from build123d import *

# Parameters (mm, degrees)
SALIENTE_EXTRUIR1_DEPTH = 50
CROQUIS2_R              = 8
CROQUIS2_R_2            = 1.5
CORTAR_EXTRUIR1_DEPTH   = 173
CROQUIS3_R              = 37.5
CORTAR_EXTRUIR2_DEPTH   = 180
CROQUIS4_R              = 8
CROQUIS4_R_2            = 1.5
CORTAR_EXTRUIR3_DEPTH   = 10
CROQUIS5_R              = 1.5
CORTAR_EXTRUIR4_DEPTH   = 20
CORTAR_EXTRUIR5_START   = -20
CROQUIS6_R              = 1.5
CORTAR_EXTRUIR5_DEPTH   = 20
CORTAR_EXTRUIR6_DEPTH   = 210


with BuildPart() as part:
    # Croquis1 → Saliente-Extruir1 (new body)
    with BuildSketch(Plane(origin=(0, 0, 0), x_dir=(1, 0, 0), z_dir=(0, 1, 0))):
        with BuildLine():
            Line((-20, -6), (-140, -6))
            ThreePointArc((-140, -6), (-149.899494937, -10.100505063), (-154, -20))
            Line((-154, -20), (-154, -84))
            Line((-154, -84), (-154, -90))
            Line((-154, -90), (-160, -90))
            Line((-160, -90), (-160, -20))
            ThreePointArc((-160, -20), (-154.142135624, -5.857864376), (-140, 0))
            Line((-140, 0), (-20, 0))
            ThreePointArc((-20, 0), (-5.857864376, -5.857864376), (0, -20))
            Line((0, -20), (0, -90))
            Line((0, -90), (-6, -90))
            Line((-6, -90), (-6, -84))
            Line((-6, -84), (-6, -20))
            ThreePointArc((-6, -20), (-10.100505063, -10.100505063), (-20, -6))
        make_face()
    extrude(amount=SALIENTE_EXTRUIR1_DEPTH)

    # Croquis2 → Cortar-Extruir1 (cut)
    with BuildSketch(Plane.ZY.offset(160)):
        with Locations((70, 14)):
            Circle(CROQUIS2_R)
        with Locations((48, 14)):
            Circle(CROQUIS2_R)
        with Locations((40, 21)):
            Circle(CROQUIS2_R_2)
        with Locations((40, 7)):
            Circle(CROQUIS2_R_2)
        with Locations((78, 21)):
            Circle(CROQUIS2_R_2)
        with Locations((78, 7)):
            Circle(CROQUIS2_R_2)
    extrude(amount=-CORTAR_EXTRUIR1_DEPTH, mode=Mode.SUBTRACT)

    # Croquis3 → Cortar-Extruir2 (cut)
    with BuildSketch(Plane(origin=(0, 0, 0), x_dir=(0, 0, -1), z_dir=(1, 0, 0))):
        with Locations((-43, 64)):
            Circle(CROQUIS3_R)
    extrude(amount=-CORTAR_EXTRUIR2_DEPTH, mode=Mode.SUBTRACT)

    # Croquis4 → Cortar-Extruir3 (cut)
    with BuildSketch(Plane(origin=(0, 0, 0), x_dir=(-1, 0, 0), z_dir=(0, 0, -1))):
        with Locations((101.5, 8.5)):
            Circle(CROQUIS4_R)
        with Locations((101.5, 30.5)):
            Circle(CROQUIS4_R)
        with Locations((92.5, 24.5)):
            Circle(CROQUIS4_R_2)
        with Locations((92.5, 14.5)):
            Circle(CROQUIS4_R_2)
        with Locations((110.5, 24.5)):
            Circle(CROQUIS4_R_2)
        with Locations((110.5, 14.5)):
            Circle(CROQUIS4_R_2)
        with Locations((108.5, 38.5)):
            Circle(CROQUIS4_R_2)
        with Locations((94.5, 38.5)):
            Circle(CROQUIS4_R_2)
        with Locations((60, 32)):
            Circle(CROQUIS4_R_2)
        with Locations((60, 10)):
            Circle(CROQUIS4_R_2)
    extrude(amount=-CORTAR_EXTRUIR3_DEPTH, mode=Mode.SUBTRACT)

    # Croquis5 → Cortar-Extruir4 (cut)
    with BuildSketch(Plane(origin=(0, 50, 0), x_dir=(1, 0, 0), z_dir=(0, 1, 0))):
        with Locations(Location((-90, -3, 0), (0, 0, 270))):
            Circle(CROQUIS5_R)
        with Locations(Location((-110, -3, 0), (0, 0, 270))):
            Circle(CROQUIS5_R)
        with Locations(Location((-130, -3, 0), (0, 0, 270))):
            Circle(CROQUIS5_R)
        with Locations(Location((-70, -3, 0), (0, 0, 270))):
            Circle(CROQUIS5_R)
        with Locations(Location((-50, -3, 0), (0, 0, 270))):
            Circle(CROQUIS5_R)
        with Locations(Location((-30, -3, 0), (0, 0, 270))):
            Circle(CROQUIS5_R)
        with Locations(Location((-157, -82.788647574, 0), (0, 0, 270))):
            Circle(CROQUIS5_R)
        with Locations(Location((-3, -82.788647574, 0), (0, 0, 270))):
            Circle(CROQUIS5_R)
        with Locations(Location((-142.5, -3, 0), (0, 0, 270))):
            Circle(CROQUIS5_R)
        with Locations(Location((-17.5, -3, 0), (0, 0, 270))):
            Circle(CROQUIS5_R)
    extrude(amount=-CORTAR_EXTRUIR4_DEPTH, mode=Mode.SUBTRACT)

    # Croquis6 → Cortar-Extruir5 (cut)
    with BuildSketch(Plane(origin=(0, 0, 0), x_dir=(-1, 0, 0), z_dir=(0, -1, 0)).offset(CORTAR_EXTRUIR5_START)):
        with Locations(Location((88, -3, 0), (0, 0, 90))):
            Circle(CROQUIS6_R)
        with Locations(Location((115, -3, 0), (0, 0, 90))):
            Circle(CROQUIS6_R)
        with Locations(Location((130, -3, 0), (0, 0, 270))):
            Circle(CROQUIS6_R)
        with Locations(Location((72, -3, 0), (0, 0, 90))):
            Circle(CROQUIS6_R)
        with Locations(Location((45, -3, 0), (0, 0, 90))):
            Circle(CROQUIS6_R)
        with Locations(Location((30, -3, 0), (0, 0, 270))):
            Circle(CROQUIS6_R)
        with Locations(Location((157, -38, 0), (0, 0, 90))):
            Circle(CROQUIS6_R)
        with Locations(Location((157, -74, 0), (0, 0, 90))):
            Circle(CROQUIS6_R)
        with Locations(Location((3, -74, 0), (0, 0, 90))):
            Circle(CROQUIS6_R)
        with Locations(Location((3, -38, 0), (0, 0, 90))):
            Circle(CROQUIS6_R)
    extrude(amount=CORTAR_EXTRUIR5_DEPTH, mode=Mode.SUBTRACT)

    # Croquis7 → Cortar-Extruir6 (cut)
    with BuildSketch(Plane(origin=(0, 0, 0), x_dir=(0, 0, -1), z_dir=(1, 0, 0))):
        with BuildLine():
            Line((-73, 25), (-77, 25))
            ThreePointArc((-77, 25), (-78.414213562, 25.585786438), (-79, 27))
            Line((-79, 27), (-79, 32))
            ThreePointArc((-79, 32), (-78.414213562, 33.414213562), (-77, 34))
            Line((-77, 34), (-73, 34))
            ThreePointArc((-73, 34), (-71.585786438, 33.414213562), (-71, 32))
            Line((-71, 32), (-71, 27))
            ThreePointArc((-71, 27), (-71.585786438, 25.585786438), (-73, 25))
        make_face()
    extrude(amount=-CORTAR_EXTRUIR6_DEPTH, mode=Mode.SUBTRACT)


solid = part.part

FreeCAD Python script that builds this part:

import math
import FreeCAD as App
import Part
import Sketcher

V = App.Vector
Q = App.Units.Quantity

doc = App.newDocument("Part")
body = doc.addObject("PartDesign::Body", "Body")

# Sketch on XZ plane
sketch1 = doc.addObject("Sketcher::SketchObject", "Sketch")
body.addObject(sketch1)
sketch1.AttachmentSupport = (doc.XZ_Plane, [""])
sketch1.MapMode = "FlatFace"
sketch1.addGeometry([
    Part.LineSegment(V(-140, 6, 0), V(-20, 6, 0)),  # 0
    Part.ArcOfCircle(Part.Circle(V(-20, 20, 0), V(0, 0, 1), 14), math.radians(-90), math.radians(0)),  # 1
    Part.LineSegment(V(-6, 20, 0), V(-6, 90, 0)),  # 2
    Part.LineSegment(V(-6, 90, 0), V(0, 90, 0)),  # 3
    Part.LineSegment(V(0, 90, 0), V(0, 20, 0)),  # 4
    Part.ArcOfCircle(Part.Circle(V(-20, 20, 0), V(0, 0, 1), 20), math.radians(-90), math.radians(0)),  # 5
    Part.LineSegment(V(-20, 0, 0), V(-140, 0, 0)),  # 6
    Part.ArcOfCircle(Part.Circle(V(-140, 20, 0), V(0, 0, 1), 20), math.radians(180), math.radians(270)),  # 7
    Part.LineSegment(V(-160, 20, 0), V(-160, 90, 0)),  # 8
    Part.LineSegment(V(-160, 90, 0), V(-154, 90, 0)),  # 9
    Part.LineSegment(V(-154, 90, 0), V(-154, 20, 0)),  # 10
    Part.ArcOfCircle(Part.Circle(V(-140, 20, 0), V(0, 0, 1), 14), math.radians(180), math.radians(270)),  # 11
], False)
sketch1.addConstraint([
    Sketcher.Constraint("Tangent", 0, 2, 1, 1),
    Sketcher.Constraint("Tangent", 1, 2, 2, 1),
    Sketcher.Constraint("Coincident", 2, 2, 3, 1),
    Sketcher.Constraint("Coincident", 3, 2, 4, 1),
    Sketcher.Constraint("Tangent", 4, 2, 5, 2),
    Sketcher.Constraint("Tangent", 5, 1, 6, 1),
    Sketcher.Constraint("Tangent", 6, 2, 7, 2),
    Sketcher.Constraint("Tangent", 7, 1, 8, 1),
    Sketcher.Constraint("Coincident", 8, 2, 9, 1),
    Sketcher.Constraint("Coincident", 9, 2, 10, 1),
    Sketcher.Constraint("Tangent", 10, 2, 11, 1),
    Sketcher.Constraint("Tangent", 11, 2, 0, 1),
    Sketcher.Constraint("Horizontal", 0),
    Sketcher.Constraint("Vertical", 2),
    Sketcher.Constraint("Horizontal", 3),
    Sketcher.Constraint("Vertical", 4),
    Sketcher.Constraint("Horizontal", 6),
    Sketcher.Constraint("Vertical", 8),
    Sketcher.Constraint("Horizontal", 9),
    Sketcher.Constraint("Vertical", 10),
    Sketcher.Constraint("Coincident", 5, 3, 1, 3),
    Sketcher.Constraint("Coincident", 11, 3, 7, 3),
    Sketcher.Constraint("Equal", 5, 7),
    Sketcher.Constraint("PointOnObject", 3, 2, -2),
    Sketcher.Constraint("PointOnObject", 5, 1, -1),
    Sketcher.Constraint("Horizontal", 3, 2, 8, 2),
    Sketcher.Constraint("Radius", 1, Q("14 mm")),
    Sketcher.Constraint("Radius", 5, Q("20 mm")),
    Sketcher.Constraint("DistanceX", 0, 1, 0, 2, Q("120 mm")),
    Sketcher.Constraint("DistanceY", 2, 1, 2, 2, Q("70 mm")),
])
pad1 = doc.addObject("PartDesign::Pad", "Pad")
body.addObject(pad1)
pad1.Profile = sketch1
pad1.Length = 50
pad1.Reversed = True

# Sketch on YZ plane
sketch2 = doc.addObject("Sketcher::SketchObject", "Sketch001")
body.addObject(sketch2)
sketch2.AttachmentSupport = (doc.YZ_Plane, [""])
sketch2.MapMode = "FlatFace"
sketch2.AttachmentOffset = App.Placement(V(0, 0, -160), App.Rotation())
sketch2.addGeometry([
    Part.Circle(V(14, 70, 0), V(0, 0, 1), 8),  # 0
    Part.Circle(V(14, 48, 0), V(0, 0, 1), 8),  # 1
    Part.Circle(V(21, 40, 0), V(0, 0, 1), 1.5),  # 2
    Part.Circle(V(7, 40, 0), V(0, 0, 1), 1.5),  # 3
    Part.Circle(V(21, 78, 0), V(0, 0, 1), 1.5),  # 4
    Part.Circle(V(7, 78, 0), V(0, 0, 1), 1.5),  # 5
], False)
sketch2.addConstraint([
    Sketcher.Constraint("Equal", 0, 1),
    Sketcher.Constraint("Equal", 2, 3),
    Sketcher.Constraint("Equal", 3, 4),
    Sketcher.Constraint("Equal", 4, 5),
    Sketcher.Constraint("Horizontal", 2, 3, 3, 3),
    Sketcher.Constraint("Horizontal", 4, 3, 5, 3),
    Sketcher.Constraint("Vertical", 0, 3, 1, 3),
    Sketcher.Constraint("Vertical", 2, 3, 4, 3),
    Sketcher.Constraint("Vertical", 3, 3, 5, 3),
    Sketcher.Constraint("Diameter", 0, Q("16 mm")),
    Sketcher.Constraint("Diameter", 2, Q("3 mm")),
    Sketcher.Constraint("DistanceX", -1, 1, 0, 3, Q("14 mm")),
    Sketcher.Constraint("DistanceY", -1, 1, 0, 3, Q("70 mm")),
    Sketcher.Constraint("DistanceY", -1, 1, 1, 3, Q("48 mm")),
    Sketcher.Constraint("DistanceX", -1, 1, 2, 3, Q("21 mm")),
    Sketcher.Constraint("DistanceY", -1, 1, 2, 3, Q("40 mm")),
    Sketcher.Constraint("DistanceX", -1, 1, 3, 3, Q("7 mm")),
    Sketcher.Constraint("DistanceY", -1, 1, 4, 3, Q("78 mm")),
])
pocket1 = doc.addObject("PartDesign::Pocket", "Pocket")
body.addObject(pocket1)
pocket1.Profile = sketch2
pocket1.Length = 173
pocket1.Reversed = True

# Sketch on YZ plane
sketch3 = doc.addObject("Sketcher::SketchObject", "Sketch002")
body.addObject(sketch3)
sketch3.AttachmentSupport = (doc.YZ_Plane, [""])
sketch3.MapMode = "FlatFace"
sketch3.addGeometry(Part.Circle(V(64, 43, 0), V(0, 0, 1), 37.5), False)
sketch3.addConstraint([
    Sketcher.Constraint("Diameter", 0, Q("75 mm")),
    Sketcher.Constraint("DistanceX", -1, 1, 0, 3, Q("64 mm")),
    Sketcher.Constraint("DistanceY", -1, 1, 0, 3, Q("43 mm")),
])
pocket2 = doc.addObject("PartDesign::Pocket", "Pocket001")
body.addObject(pocket2)
pocket2.Profile = sketch3
pocket2.Length = 180

# Sketch on XY plane
sketch4 = doc.addObject("Sketcher::SketchObject", "Sketch003")
body.addObject(sketch4)
sketch4.AttachmentSupport = (doc.XY_Plane, [""])
sketch4.MapMode = "FlatFace"
sketch4.addGeometry([
    Part.Circle(V(-101.5, 8.5, 0), V(0, 0, 1), 8),  # 0
    Part.Circle(V(-101.5, 30.5, 0), V(0, 0, 1), 8),  # 1
    Part.Circle(V(-92.5, 24.5, 0), V(0, 0, 1), 1.5),  # 2
    Part.Circle(V(-92.5, 14.5, 0), V(0, 0, 1), 1.5),  # 3
    Part.Circle(V(-110.5, 24.5, 0), V(0, 0, 1), 1.5),  # 4
    Part.Circle(V(-110.5, 14.5, 0), V(0, 0, 1), 1.5),  # 5
    Part.Circle(V(-108.5, 38.5, 0), V(0, 0, 1), 1.5),  # 6
    Part.Circle(V(-94.5, 38.5, 0), V(0, 0, 1), 1.5),  # 7
    Part.Circle(V(-60, 32, 0), V(0, 0, 1), 1.5),  # 8
    Part.Circle(V(-60, 10, 0), V(0, 0, 1), 1.5),  # 9
], False)
sketch4.addConstraint([
    Sketcher.Constraint("Equal", 0, 1),
    Sketcher.Constraint("Equal", 2, 3),
    Sketcher.Constraint("Equal", 3, 4),
    Sketcher.Constraint("Equal", 4, 5),
    Sketcher.Constraint("Equal", 5, 6),
    Sketcher.Constraint("Equal", 6, 7),
    Sketcher.Constraint("Equal", 7, 8),
    Sketcher.Constraint("Equal", 8, 9),
    Sketcher.Constraint("Horizontal", 2, 3, 4, 3),
    Sketcher.Constraint("Horizontal", 3, 3, 5, 3),
    Sketcher.Constraint("Horizontal", 6, 3, 7, 3),
    Sketcher.Constraint("Vertical", 0, 3, 1, 3),
    Sketcher.Constraint("Vertical", 2, 3, 3, 3),
    Sketcher.Constraint("Vertical", 4, 3, 5, 3),
    Sketcher.Constraint("Vertical", 8, 3, 9, 3),
    Sketcher.Constraint("Diameter", 0, Q("16 mm")),
    Sketcher.Constraint("Diameter", 2, Q("3 mm")),
    Sketcher.Constraint("DistanceX", 8, 3, -1, 1, Q("60 mm")),
    Sketcher.Constraint("DistanceY", -1, 1, 8, 3, Q("32 mm")),
    Sketcher.Constraint("DistanceY", -1, 1, 9, 3, Q("10 mm")),
    Sketcher.Constraint("DistanceY", 0, 3, 1, 3, Q("22 mm")),
    Sketcher.Constraint("DistanceX", 1, 3, 2, 3, Q("9 mm")),
    Sketcher.Constraint("DistanceY", 2, 3, 1, 3, Q("6 mm")),
    Sketcher.Constraint("DistanceY", 3, 3, 2, 3, Q("10 mm")),
    Sketcher.Constraint("DistanceX", 4, 3, 1, 3, Q("9 mm")),
    Sketcher.Constraint("DistanceX", 6, 3, 1, 3, Q("7 mm")),
    Sketcher.Constraint("DistanceY", 1, 3, 6, 3, Q("8 mm")),
    Sketcher.Constraint("DistanceX", 1, 3, 7, 3, Q("7 mm")),
    Sketcher.Constraint("DistanceX", 0, 3, -1, 1, Q("101.5 mm")),
    Sketcher.Constraint("DistanceY", -1, 1, 0, 3, Q("8.5 mm")),
])
pocket3 = doc.addObject("PartDesign::Pocket", "Pocket002")
body.addObject(pocket3)
pocket3.Profile = sketch4
pocket3.Length = 10
pocket3.Reversed = True

# Sketch on XZ plane
sketch5 = doc.addObject("Sketcher::SketchObject", "Sketch004")
body.addObject(sketch5)
sketch5.AttachmentSupport = (doc.XZ_Plane, [""])
sketch5.MapMode = "FlatFace"
sketch5.AttachmentOffset = App.Placement(V(0, 0, -50), App.Rotation())
sketch5.addGeometry([
    Part.Circle(V(-90, 3, 0), V(0, 0, 1), 1.5),  # 0
    Part.Circle(V(-110, 3, 0), V(0, 0, 1), 1.5),  # 1
    Part.Circle(V(-130, 3, 0), V(0, 0, 1), 1.5),  # 2
    Part.Circle(V(-70, 3, 0), V(0, 0, 1), 1.5),  # 3
    Part.Circle(V(-50, 3, 0), V(0, 0, 1), 1.5),  # 4
    Part.Circle(V(-30, 3, 0), V(0, 0, 1), 1.5),  # 5
    Part.Circle(V(-157, 82.788648, 0), V(0, 0, 1), 1.5),  # 6
    Part.Circle(V(-3, 82.788648, 0), V(0, 0, 1), 1.5),  # 7
    Part.Circle(V(-142.5, 3, 0), V(0, 0, 1), 1.5),  # 8
    Part.Circle(V(-17.5, 3, 0), V(0, 0, 1), 1.5),  # 9
], False)
sketch5.addConstraint([
    Sketcher.Constraint("Equal", 0, 1),
    Sketcher.Constraint("Equal", 1, 2),
    Sketcher.Constraint("Equal", 2, 3),
    Sketcher.Constraint("Equal", 3, 4),
    Sketcher.Constraint("Equal", 4, 5),
    Sketcher.Constraint("Equal", 5, 6),
    Sketcher.Constraint("Equal", 6, 7),
    Sketcher.Constraint("Equal", 7, 8),
    Sketcher.Constraint("Equal", 8, 9),
    Sketcher.Constraint("Horizontal", 0, 3, 1, 3),
    Sketcher.Constraint("Horizontal", 1, 3, 2, 3),
    Sketcher.Constraint("Horizontal", 2, 3, 3, 3),
    Sketcher.Constraint("Horizontal", 3, 3, 4, 3),
    Sketcher.Constraint("Horizontal", 4, 3, 5, 3),
    Sketcher.Constraint("Horizontal", 6, 3, 7, 3),
    Sketcher.Constraint("Horizontal", 5, 3, 8, 3),
    Sketcher.Constraint("Horizontal", 8, 3, 9, 3),
    Sketcher.Constraint("Diameter", 0, Q("3 mm")),
    Sketcher.Constraint("DistanceX", 0, 3, -1, 1, Q("90 mm")),
    Sketcher.Constraint("DistanceY", -1, 1, 0, 3, Q("3 mm")),
    Sketcher.Constraint("DistanceX", 1, 3, -1, 1, Q("110 mm")),
    Sketcher.Constraint("DistanceX", 2, 3, -1, 1, Q("130 mm")),
    Sketcher.Constraint("DistanceX", 3, 3, -1, 1, Q("70 mm")),
    Sketcher.Constraint("DistanceX", 4, 3, -1, 1, Q("50 mm")),
    Sketcher.Constraint("DistanceX", 5, 3, -1, 1, Q("30 mm")),
    Sketcher.Constraint("DistanceX", 6, 3, -1, 1, Q("157 mm")),
    Sketcher.Constraint("DistanceX", 7, 3, -1, 1, Q("3 mm")),
    Sketcher.Constraint("DistanceX", 8, 3, -1, 1, Q("142.5 mm")),
    Sketcher.Constraint("DistanceX", 9, 3, -1, 1, Q("17.5 mm")),
    Sketcher.Constraint("DistanceY", -1, 1, 6, 3, Q("82.788648 mm")),
])
pocket4 = doc.addObject("PartDesign::Pocket", "Pocket003")
body.addObject(pocket4)
pocket4.Profile = sketch5
pocket4.Length = 20
pocket4.Reversed = True

# Sketch on XZ plane
sketch6 = doc.addObject("Sketcher::SketchObject", "Sketch005")
body.addObject(sketch6)
sketch6.AttachmentSupport = (doc.XZ_Plane, [""])
sketch6.MapMode = "FlatFace"
sketch6.AttachmentOffset = App.Placement(V(0, 0, -20), App.Rotation())
sketch6.addGeometry([
    Part.Circle(V(-88, 3, 0), V(0, 0, 1), 1.5),  # 0
    Part.Circle(V(-115, 3, 0), V(0, 0, 1), 1.5),  # 1
    Part.Circle(V(-130, 3, 0), V(0, 0, 1), 1.5),  # 2
    Part.Circle(V(-72, 3, 0), V(0, 0, 1), 1.5),  # 3
    Part.Circle(V(-45, 3, 0), V(0, 0, 1), 1.5),  # 4
    Part.Circle(V(-30, 3, 0), V(0, 0, 1), 1.5),  # 5
    Part.Circle(V(-157, 38, 0), V(0, 0, 1), 1.5),  # 6
    Part.Circle(V(-157, 74, 0), V(0, 0, 1), 1.5),  # 7
    Part.Circle(V(-3, 74, 0), V(0, 0, 1), 1.5),  # 8
    Part.Circle(V(-3, 38, 0), V(0, 0, 1), 1.5),  # 9
], False)
sketch6.addConstraint([
    Sketcher.Constraint("Equal", 0, 1),
    Sketcher.Constraint("Equal", 1, 2),
    Sketcher.Constraint("Equal", 2, 3),
    Sketcher.Constraint("Equal", 3, 4),
    Sketcher.Constraint("Equal", 4, 5),
    Sketcher.Constraint("Equal", 5, 6),
    Sketcher.Constraint("Equal", 6, 7),
    Sketcher.Constraint("Equal", 7, 8),
    Sketcher.Constraint("Equal", 8, 9),
    Sketcher.Constraint("Horizontal", 0, 3, 1, 3),
    Sketcher.Constraint("Horizontal", 1, 3, 2, 3),
    Sketcher.Constraint("Horizontal", 2, 3, 3, 3),
    Sketcher.Constraint("Horizontal", 3, 3, 4, 3),
    Sketcher.Constraint("Horizontal", 4, 3, 5, 3),
    Sketcher.Constraint("Horizontal", 7, 3, 8, 3),
    Sketcher.Constraint("Horizontal", 6, 3, 9, 3),
    Sketcher.Constraint("Vertical", 6, 3, 7, 3),
    Sketcher.Constraint("Vertical", 8, 3, 9, 3),
    Sketcher.Constraint("Diameter", 0, Q("3 mm")),
    Sketcher.Constraint("DistanceX", 0, 3, -1, 1, Q("88 mm")),
    Sketcher.Constraint("DistanceY", -1, 1, 0, 3, Q("3 mm")),
    Sketcher.Constraint("DistanceX", 1, 3, -1, 1, Q("115 mm")),
    Sketcher.Constraint("DistanceX", 2, 3, -1, 1, Q("130 mm")),
    Sketcher.Constraint("DistanceX", 3, 3, -1, 1, Q("72 mm")),
    Sketcher.Constraint("DistanceX", 4, 3, -1, 1, Q("45 mm")),
    Sketcher.Constraint("DistanceX", 5, 3, -1, 1, Q("30 mm")),
    Sketcher.Constraint("DistanceX", 6, 3, -1, 1, Q("157 mm")),
    Sketcher.Constraint("DistanceY", -1, 1, 6, 3, Q("38 mm")),
    Sketcher.Constraint("DistanceY", -1, 1, 7, 3, Q("74 mm")),
    Sketcher.Constraint("DistanceX", 8, 3, -1, 1, Q("3 mm")),
])
pocket5 = doc.addObject("PartDesign::Pocket", "Pocket004")
body.addObject(pocket5)
pocket5.Profile = sketch6
pocket5.Length = 20
pocket5.Reversed = True

# Sketch on YZ plane
sketch7 = doc.addObject("Sketcher::SketchObject", "Sketch006")
body.addObject(sketch7)
sketch7.AttachmentSupport = (doc.YZ_Plane, [""])
sketch7.MapMode = "FlatFace"
sketch7.addGeometry([
    Part.LineSegment(V(25, 77, 0), V(25, 73, 0)),  # 0
    Part.ArcOfCircle(Part.Circle(V(27, 73, 0), V(0, 0, 1), 2), math.radians(-180), math.radians(-90)),  # 1
    Part.LineSegment(V(27, 71, 0), V(32, 71, 0)),  # 2
    Part.ArcOfCircle(Part.Circle(V(32, 73, 0), V(0, 0, 1), 2), math.radians(-90), math.radians(0)),  # 3
    Part.LineSegment(V(34, 73, 0), V(34, 77, 0)),  # 4
    Part.ArcOfCircle(Part.Circle(V(32, 77, 0), V(0, 0, 1), 2), math.radians(0), math.radians(90)),  # 5
    Part.LineSegment(V(32, 79, 0), V(27, 79, 0)),  # 6
    Part.ArcOfCircle(Part.Circle(V(27, 77, 0), V(0, 0, 1), 2), math.radians(90), math.radians(180)),  # 7
], False)
sketch7.addConstraint([
    Sketcher.Constraint("Tangent", 0, 2, 1, 1),
    Sketcher.Constraint("Tangent", 1, 2, 2, 1),
    Sketcher.Constraint("Tangent", 2, 2, 3, 1),
    Sketcher.Constraint("Tangent", 3, 2, 4, 1),
    Sketcher.Constraint("Tangent", 4, 2, 5, 1),
    Sketcher.Constraint("Tangent", 5, 2, 6, 1),
    Sketcher.Constraint("Tangent", 6, 2, 7, 1),
    Sketcher.Constraint("Tangent", 7, 2, 0, 1),
    Sketcher.Constraint("Vertical", 0),
    Sketcher.Constraint("Horizontal", 2),
    Sketcher.Constraint("Vertical", 4),
    Sketcher.Constraint("Horizontal", 6),
    Sketcher.Constraint("Equal", 1, 3),
    Sketcher.Constraint("Equal", 3, 5),
    Sketcher.Constraint("Equal", 5, 7),
    Sketcher.Constraint("Radius", 1, Q("2 mm")),
    Sketcher.Constraint("DistanceX", 2, 1, 2, 2, Q("5 mm")),
    Sketcher.Constraint("DistanceY", 0, 2, 0, 1, Q("4 mm")),
    Sketcher.Constraint("DistanceX", -1, 1, 1, 3, Q("27 mm")),
    Sketcher.Constraint("DistanceY", -1, 1, 1, 3, Q("73 mm")),
])
pocket6 = doc.addObject("PartDesign::Pocket", "Pocket005")
body.addObject(pocket6)
pocket6.Profile = sketch7
pocket6.Length = 210

doc.recompute()
